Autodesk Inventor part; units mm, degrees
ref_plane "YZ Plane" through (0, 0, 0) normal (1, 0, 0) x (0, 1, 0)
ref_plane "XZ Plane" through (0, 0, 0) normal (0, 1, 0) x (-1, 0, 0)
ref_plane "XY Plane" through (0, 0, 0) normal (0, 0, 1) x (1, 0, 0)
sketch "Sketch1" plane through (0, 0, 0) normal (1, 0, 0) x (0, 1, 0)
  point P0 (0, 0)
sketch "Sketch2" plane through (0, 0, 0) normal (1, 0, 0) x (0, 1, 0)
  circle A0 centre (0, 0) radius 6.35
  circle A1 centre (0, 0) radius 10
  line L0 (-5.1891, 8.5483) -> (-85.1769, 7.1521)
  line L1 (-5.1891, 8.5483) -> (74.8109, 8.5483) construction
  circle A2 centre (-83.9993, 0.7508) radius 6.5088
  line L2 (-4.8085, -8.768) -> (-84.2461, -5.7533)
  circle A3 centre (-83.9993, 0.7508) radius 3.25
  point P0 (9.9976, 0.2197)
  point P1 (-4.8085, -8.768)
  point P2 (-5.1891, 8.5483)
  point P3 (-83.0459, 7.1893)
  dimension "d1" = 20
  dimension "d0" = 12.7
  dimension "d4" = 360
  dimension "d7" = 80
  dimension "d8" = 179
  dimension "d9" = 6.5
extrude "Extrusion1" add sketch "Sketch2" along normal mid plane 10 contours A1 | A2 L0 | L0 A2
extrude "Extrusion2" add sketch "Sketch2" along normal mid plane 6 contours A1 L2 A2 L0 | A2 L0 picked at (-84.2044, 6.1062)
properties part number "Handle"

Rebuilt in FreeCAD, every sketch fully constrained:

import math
import FreeCAD as App
import Part
import Sketcher
from FreeCAD import Vector
Q = App.Units.Quantity

doc = App.newDocument("Part")
params = doc.addObject("Spreadsheet::Sheet", "Params")
for row, (alias, value) in enumerate([
    ("sketch1_diameter", "20 mm"),
    ("sketch1_diameter2", "12.7 mm"),
    ("sketch1_diameter3", "6.5 mm"),
    ("pad1_length", "10 mm"),
    ("sketch2_radius", "10 mm"),
    ("sketch2_diameter", "6.5 mm"),
    ("sketch2_length", "80 mm"),
    ("pad2_length", "6 mm"),
], start=1):
    params.set(f"A{row}", alias)
    params.set(f"B{row}", "=" + value)
    params.setAlias(f"B{row}", alias)

body = doc.addObject("PartDesign::Body", "Body")
body.AllowCompound = True

# Sketch on YZ plane
sketch1 = doc.addObject("Sketcher::SketchObject", "Sketch")
body.addObject(sketch1)
sketch1.AttachmentSupport = (doc.YZ_Plane, [""])
sketch1.MapMode = "FlatFace"
sketch1.addGeometry([
    Part.Circle(Vector(0, 0, 0), Vector(0, 0, 1), 10),
    Part.Circle(Vector(0, 0, 0), Vector(0, 0, 1), 6.35),
    Part.Circle(Vector(-83.9993, 0.7508, 0), Vector(0, 0, 1), 6.5088),
    Part.Circle(Vector(-83.9993, 0.7508, 0), Vector(0, 0, 1), 3.25),
], False)
sketch1.addConstraint([
    Sketcher.Constraint("Coincident", 0, 3, -1, 1),
    Sketcher.Constraint("Coincident", 1, 3, -1, 1),
    Sketcher.Constraint("Coincident", 3, 3, 2, 3),
    Sketcher.Constraint("Diameter", 0, 20.0),
    Sketcher.Constraint("Diameter", 1, 12.7),
    Sketcher.Constraint("Diameter", 3, 6.5),
    Sketcher.Constraint("Diameter", 2, 13.0176),
    Sketcher.Constraint("DistanceX", 2, 3, -1, 1, 83.9993),
    Sketcher.Constraint("DistanceY", -1, 1, 2, 3, 0.7508),
])
sketch1.setExpression("Constraints[3]", "Params.sketch1_diameter")
sketch1.setExpression("Constraints[4]", "Params.sketch1_diameter2")
sketch1.setExpression("Constraints[5]", "Params.sketch1_diameter3")
pad1 = doc.addObject("PartDesign::Pad", "Pad")
body.addObject(pad1)
pad1.Profile = sketch1
pad1.setExpression("Length", "Params.pad1_length")
pad1.Midplane = True

# Sketch on YZ plane
sketch2 = doc.addObject("Sketcher::SketchObject", "Sketch001")
body.addObject(sketch2)
sketch2.AttachmentSupport = (doc.YZ_Plane, [""])
sketch2.MapMode = "FlatFace"
sketch2.addGeometry([
    Part.ArcOfCircle(Part.Circle(Vector(0, 0, 0), Vector(0, 0, 1), 10), math.radians(121.259131), math.radians(241.258989)),  # 0
    Part.LineSegment(Vector(-5.1891, 8.5483, 0), Vector(-85.1769, 7.1521, 0)),  # 1
    Part.ArcOfCircle(Part.Circle(Vector(-83.9993, 0.7508, 0), Vector(0, 0, 1), 6.5088), math.radians(100.423738), math.radians(267.826937)),  # 2
    Part.LineSegment(Vector(-84.2461, -5.7533, 0), Vector(-4.8085, -8.768, 0)),  # 3
    Part.Circle(Vector(-83.9993, 0.7508, 0), Vector(0, 0, 1), 3.25),  # 4
], False)
sketch2.addConstraint([
    Sketcher.Constraint("Coincident", 0, 1, 1, 1),
    Sketcher.Constraint("Coincident", 1, 2, 2, 1),
    Sketcher.Constraint("Tangent", 2, 2, 3, 1),
    Sketcher.Constraint("Coincident", 3, 2, 0, 2),
    Sketcher.Constraint("Coincident", 0, 3, -1, 1),
    Sketcher.Constraint("Coincident", 4, 3, 2, 3),
    Sketcher.Constraint("Radius", 0, 10.0),
    Sketcher.Constraint("Diameter", 4, 6.5),
    Sketcher.Constraint("Angle", 1, Q("-179 deg")),
    Sketcher.Constraint("Distance", 1, 80.0),
    Sketcher.Constraint("Radius", 2, 6.5088),
    Sketcher.Constraint("DistanceX", 0, 1, -1, 1, 5.189),
    Sketcher.Constraint("DistanceX", 2, 2, -1, 1, 84.246),
    Sketcher.Constraint("DistanceY", 3, 2, -1, 1, 8.768),
])
sketch2.setExpression("Constraints[6]", "Params.sketch2_radius")
sketch2.setExpression("Constraints[7]", "Params.sketch2_diameter")
sketch2.setExpression("Constraints[9]", "Params.sketch2_length")
pad2 = doc.addObject("PartDesign::Pad", "Pad001")
body.addObject(pad2)
pad2.Profile = sketch2
pad2.setExpression("Length", "Params.pad2_length")
pad2.Midplane = True

doc.recompute()
